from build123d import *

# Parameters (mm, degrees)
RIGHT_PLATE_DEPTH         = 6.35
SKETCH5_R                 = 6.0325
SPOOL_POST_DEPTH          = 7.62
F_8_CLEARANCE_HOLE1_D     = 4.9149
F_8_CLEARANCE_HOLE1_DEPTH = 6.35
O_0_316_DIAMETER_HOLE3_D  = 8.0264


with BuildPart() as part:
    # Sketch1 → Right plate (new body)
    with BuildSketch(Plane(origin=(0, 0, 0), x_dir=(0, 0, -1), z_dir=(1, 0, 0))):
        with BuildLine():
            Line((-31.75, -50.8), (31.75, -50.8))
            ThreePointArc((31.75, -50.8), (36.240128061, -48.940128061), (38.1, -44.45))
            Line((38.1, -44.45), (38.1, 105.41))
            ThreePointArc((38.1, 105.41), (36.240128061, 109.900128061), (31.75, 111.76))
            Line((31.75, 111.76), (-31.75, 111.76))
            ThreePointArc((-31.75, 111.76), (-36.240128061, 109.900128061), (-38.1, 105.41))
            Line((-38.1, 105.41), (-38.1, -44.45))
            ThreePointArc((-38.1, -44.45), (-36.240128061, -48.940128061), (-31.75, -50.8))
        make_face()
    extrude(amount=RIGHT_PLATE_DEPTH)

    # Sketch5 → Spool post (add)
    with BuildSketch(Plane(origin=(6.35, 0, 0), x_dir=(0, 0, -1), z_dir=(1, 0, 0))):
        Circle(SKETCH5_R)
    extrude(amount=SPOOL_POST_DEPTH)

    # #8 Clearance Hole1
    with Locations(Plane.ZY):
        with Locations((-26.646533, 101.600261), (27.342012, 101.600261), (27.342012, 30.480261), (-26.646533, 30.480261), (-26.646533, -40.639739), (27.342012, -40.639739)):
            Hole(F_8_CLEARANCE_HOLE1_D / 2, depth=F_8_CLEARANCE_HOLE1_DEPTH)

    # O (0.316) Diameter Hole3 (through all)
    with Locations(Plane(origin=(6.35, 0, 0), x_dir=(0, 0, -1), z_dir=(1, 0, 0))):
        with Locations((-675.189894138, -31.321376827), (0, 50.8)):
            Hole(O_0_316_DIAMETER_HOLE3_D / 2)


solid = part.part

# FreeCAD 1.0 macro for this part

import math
import FreeCAD as App
import Part
import Sketcher
Q = App.Units.Quantity

doc = App.newDocument("Part")
params = doc.addObject("Spreadsheet::Sheet", "Params")
for row, (alias, value) in enumerate([
    ("sketch1_radius", "0.25 in"),
    ("sketch1_width", "5.9 in"),
    ("sketch1_height", "2.5 in"),
    ("pad1_length", "0.25 in"),
    ("sketch2_diameter", "0.475 in"),
    ("pad2_length", "0.3 in"),
    ("hole_diameter", "0.1935 in"),
    ("hole_depth", "0.25 in"),
    ("sketch4_diameter", "0.316 in"),
    ("hole2_diameter", "0.316 in"),
], start=1):
    params.set(f"A{row}", alias)
    params.set(f"B{row}", "=" + value)
    params.setAlias(f"B{row}", alias)

body = doc.addObject("PartDesign::Body", "Body")

# Sketch on YZ plane
sketch1 = body.newObject("Sketcher::SketchObject", "Sketch")
sketch1.AttachmentSupport = (doc.getObject("YZ_Plane"), [""])
sketch1.MapMode = "FlatFace"
sketch1.addGeometry(Part.LineSegment(App.Vector(-51, 32, 0), App.Vector(-51, -32, 0)), False)
sketch1.addGeometry(Part.ArcOfCircle(Part.Circle(App.Vector(-44, -32, 0), App.Vector(0, 0, 1), 6), math.radians(180), math.radians(270)), False)
sketch1.addGeometry(Part.LineSegment(App.Vector(-44, -38, 0), App.Vector(105, -38, 0)), False)
sketch1.addGeometry(Part.ArcOfCircle(Part.Circle(App.Vector(105, -32, 0), App.Vector(0, 0, 1), 6), math.radians(-90), math.radians(0)), False)
sketch1.addGeometry(Part.LineSegment(App.Vector(112, -32, 0), App.Vector(112, 32, 0)), False)
sketch1.addGeometry(Part.ArcOfCircle(Part.Circle(App.Vector(105, 32, 0), App.Vector(0, 0, 1), 6), math.radians(0), math.radians(90)), False)
sketch1.addGeometry(Part.LineSegment(App.Vector(105, 38, 0), App.Vector(-44, 38, 0)), False)
sketch1.addGeometry(Part.ArcOfCircle(Part.Circle(App.Vector(-44, 32, 0), App.Vector(0, 0, 1), 6), math.radians(90), math.radians(180)), False)
sketch1.addConstraint(Sketcher.Constraint("Tangent", 0, 2, 1, 1))
sketch1.addConstraint(Sketcher.Constraint("Tangent", 1, 2, 2, 1))
sketch1.addConstraint(Sketcher.Constraint("Tangent", 2, 2, 3, 1))
sketch1.addConstraint(Sketcher.Constraint("Tangent", 3, 2, 4, 1))
sketch1.addConstraint(Sketcher.Constraint("Tangent", 4, 2, 5, 1))
sketch1.addConstraint(Sketcher.Constraint("Tangent", 5, 2, 6, 1))
sketch1.addConstraint(Sketcher.Constraint("Tangent", 6, 2, 7, 1))
sketch1.addConstraint(Sketcher.Constraint("Tangent", 7, 2, 0, 1))
sketch1.addConstraint(Sketcher.Constraint("Vertical", 0))
sketch1.addConstraint(Sketcher.Constraint("Horizontal", 2))
sketch1.addConstraint(Sketcher.Constraint("Vertical", 4))
sketch1.addConstraint(Sketcher.Constraint("Horizontal", 6))
sketch1.addConstraint(Sketcher.Constraint("Equal", 1, 3))
sketch1.addConstraint(Sketcher.Constraint("Equal", 3, 5))
sketch1.addConstraint(Sketcher.Constraint("Equal", 5, 7))
sketch1.addConstraint(Sketcher.Constraint("Radius", 1, Q("0.25 in")))
sketch1.addConstraint(Sketcher.Constraint("DistanceX", 2, 1, 2, 2, Q("5.9 in")))
sketch1.addConstraint(Sketcher.Constraint("DistanceY", 0, 2, 0, 1, Q("2.5 in")))
sketch1.addConstraint(Sketcher.Constraint("DistanceX", 0, 2, -1, 1, Q("2 in")))
sketch1.addConstraint(Sketcher.Constraint("DistanceY", 1, 2, -1, 1, Q("1.5 in")))
sketch1.setExpression("Constraints[15]", "Params.sketch1_radius")
sketch1.setExpression("Constraints[16]", "Params.sketch1_width")
sketch1.setExpression("Constraints[17]", "Params.sketch1_height")
pad1 = body.newObject("PartDesign::Pad", "Pad")
pad1.Profile = sketch1
pad1.setExpression("Length", "Params.pad1_length")

# Sketch on YZ plane
sketch2 = body.newObject("Sketcher::SketchObject", "Sketch001")
sketch2.AttachmentSupport = (doc.getObject("YZ_Plane"), [""])
sketch2.MapMode = "FlatFace"
sketch2.AttachmentOffset = App.Placement(App.Vector(0, 0, 0.25 * 25.4), App.Rotation())
sketch2.addGeometry(Part.Circle(App.Vector(0, 0, 0), App.Vector(0, 0, 1), 6), False)
sketch2.addConstraint(Sketcher.Constraint("Coincident", 0, 3, -1, 1))
sketch2.addConstraint(Sketcher.Constraint("Diameter", 0, Q("0.475 in")))
sketch2.setExpression("Constraints[1]", "Params.sketch2_diameter")
pad2 = body.newObject("PartDesign::Pad", "Pad001")
pad2.Profile = sketch2
pad2.setExpression("Length", "Params.pad2_length")

# Sketch on YZ plane
sketch3 = body.newObject("Sketcher::SketchObject", "Sketch002")
sketch3.AttachmentSupport = (doc.getObject("YZ_Plane"), [""])
sketch3.MapMode = "FlatFace"
sketch3.addGeometry(Part.Circle(App.Vector(101.6, -26.6, 0), App.Vector(0, 0, 1), 2.5), False)
sketch3.addGeometry(Part.Circle(App.Vector(101.6, 27.3, 0), App.Vector(0, 0, 1), 2.5), False)
sketch3.addGeometry(Part.Circle(App.Vector(30.5, 27.3, 0), App.Vector(0, 0, 1), 2.5), False)
sketch3.addGeometry(Part.Circle(App.Vector(30.5, -26.6, 0), App.Vector(0, 0, 1), 2.5), False)
sketch3.addGeometry(Part.Circle(App.Vector(-40.6, -26.6, 0), App.Vector(0, 0, 1), 2.5), False)
sketch3.addGeometry(Part.Circle(App.Vector(-40.6, 27.3, 0), App.Vector(0, 0, 1), 2.5), False)
sketch3.addConstraint(Sketcher.Constraint("Equal", 0, 1))
sketch3.addConstraint(Sketcher.Constraint("Equal", 1, 2))
sketch3.addConstraint(Sketcher.Constraint("Equal", 2, 3))
sketch3.addConstraint(Sketcher.Constraint("Equal", 3, 4))
sketch3.addConstraint(Sketcher.Constraint("Equal", 4, 5))
sketch3.addConstraint(Sketcher.Constraint("Horizontal", 1, 3, 2, 3))
sketch3.addConstraint(Sketcher.Constraint("Horizontal", 0, 3, 3, 3))
sketch3.addConstraint(Sketcher.Constraint("Horizontal", 3, 3, 4, 3))
sketch3.addConstraint(Sketcher.Constraint("Horizontal", 2, 3, 5, 3))
sketch3.addConstraint(Sketcher.Constraint("Vertical", 0, 3, 1, 3))
sketch3.addConstraint(Sketcher.Constraint("Vertical", 2, 3, 3, 3))
sketch3.addConstraint(Sketcher.Constraint("Vertical", 4, 3, 5, 3))
sketch3.addConstraint(Sketcher.Constraint("Diameter", 0, Q("0.1935 in")))
sketch3.addConstraint(Sketcher.Constraint("DistanceX", 2, 3, 1, 3, Q("2.8 in")))
sketch3.addConstraint(Sketcher.Constraint("DistanceX", 4, 3, 3, 3, Q("2.8 in")))
sketch3.addConstraint(Sketcher.Constraint("DistanceX", -1, 1, 0, 3, 101.600261))
sketch3.addConstraint(Sketcher.Constraint("DistanceY", 0, 3, -1, 1, 26.646533))
sketch3.addConstraint(Sketcher.Constraint("DistanceY", -1, 1, 1, 3, 27.342012))
doc.recompute()
hole = body.newObject("PartDesign::Hole", "Hole")
hole.Profile = sketch3
hole.ThreadType = "None"
hole.setExpression("Diameter", "Params.hole_diameter")
hole.DepthType = "Dimension"
hole.setExpression("Depth", "Params.hole_depth")
hole.DrillPoint = "Flat"
hole.Reversed = True

# Sketch on YZ plane
sketch4 = body.newObject("Sketcher::SketchObject", "Sketch003")
sketch4.AttachmentSupport = (doc.getObject("YZ_Plane"), [""])
sketch4.MapMode = "FlatFace"
sketch4.AttachmentOffset = App.Placement(App.Vector(0, 0, 0.25 * 25.4), App.Rotation())
sketch4.addGeometry(Part.Circle(App.Vector(-31.3, 675.2, 0), App.Vector(0, 0, 1), 4), False)
sketch4.addGeometry(Part.Circle(App.Vector(50.8, 0, 0), App.Vector(0, 0, 1), 4), False)
sketch4.addConstraint(Sketcher.Constraint("Equal", 0, 1))
sketch4.addConstraint(Sketcher.Constraint("PointOnObject", 1, 3, -1))
sketch4.addConstraint(Sketcher.Constraint("Diameter", 0, Q("0.316 in")))
sketch4.addConstraint(Sketcher.Constraint("DistanceX", -1, 1, 1, 3, Q("2 in")))
sketch4.addConstraint(Sketcher.Constraint("DistanceX", 0, 3, -1, 1, 31.321377))
sketch4.addConstraint(Sketcher.Constraint("DistanceY", -1, 1, 0, 3, 675.189894))
sketch4.setExpression("Constraints[2]", "Params.sketch4_diameter")
doc.recompute()
hole2 = body.newObject("PartDesign::Hole", "Hole001")
hole2.Profile = sketch4
hole2.ThreadType = "None"
hole2.setExpression("Diameter", "Params.hole2_diameter")
hole2.DepthType = "ThroughAll"

doc.recompute()
